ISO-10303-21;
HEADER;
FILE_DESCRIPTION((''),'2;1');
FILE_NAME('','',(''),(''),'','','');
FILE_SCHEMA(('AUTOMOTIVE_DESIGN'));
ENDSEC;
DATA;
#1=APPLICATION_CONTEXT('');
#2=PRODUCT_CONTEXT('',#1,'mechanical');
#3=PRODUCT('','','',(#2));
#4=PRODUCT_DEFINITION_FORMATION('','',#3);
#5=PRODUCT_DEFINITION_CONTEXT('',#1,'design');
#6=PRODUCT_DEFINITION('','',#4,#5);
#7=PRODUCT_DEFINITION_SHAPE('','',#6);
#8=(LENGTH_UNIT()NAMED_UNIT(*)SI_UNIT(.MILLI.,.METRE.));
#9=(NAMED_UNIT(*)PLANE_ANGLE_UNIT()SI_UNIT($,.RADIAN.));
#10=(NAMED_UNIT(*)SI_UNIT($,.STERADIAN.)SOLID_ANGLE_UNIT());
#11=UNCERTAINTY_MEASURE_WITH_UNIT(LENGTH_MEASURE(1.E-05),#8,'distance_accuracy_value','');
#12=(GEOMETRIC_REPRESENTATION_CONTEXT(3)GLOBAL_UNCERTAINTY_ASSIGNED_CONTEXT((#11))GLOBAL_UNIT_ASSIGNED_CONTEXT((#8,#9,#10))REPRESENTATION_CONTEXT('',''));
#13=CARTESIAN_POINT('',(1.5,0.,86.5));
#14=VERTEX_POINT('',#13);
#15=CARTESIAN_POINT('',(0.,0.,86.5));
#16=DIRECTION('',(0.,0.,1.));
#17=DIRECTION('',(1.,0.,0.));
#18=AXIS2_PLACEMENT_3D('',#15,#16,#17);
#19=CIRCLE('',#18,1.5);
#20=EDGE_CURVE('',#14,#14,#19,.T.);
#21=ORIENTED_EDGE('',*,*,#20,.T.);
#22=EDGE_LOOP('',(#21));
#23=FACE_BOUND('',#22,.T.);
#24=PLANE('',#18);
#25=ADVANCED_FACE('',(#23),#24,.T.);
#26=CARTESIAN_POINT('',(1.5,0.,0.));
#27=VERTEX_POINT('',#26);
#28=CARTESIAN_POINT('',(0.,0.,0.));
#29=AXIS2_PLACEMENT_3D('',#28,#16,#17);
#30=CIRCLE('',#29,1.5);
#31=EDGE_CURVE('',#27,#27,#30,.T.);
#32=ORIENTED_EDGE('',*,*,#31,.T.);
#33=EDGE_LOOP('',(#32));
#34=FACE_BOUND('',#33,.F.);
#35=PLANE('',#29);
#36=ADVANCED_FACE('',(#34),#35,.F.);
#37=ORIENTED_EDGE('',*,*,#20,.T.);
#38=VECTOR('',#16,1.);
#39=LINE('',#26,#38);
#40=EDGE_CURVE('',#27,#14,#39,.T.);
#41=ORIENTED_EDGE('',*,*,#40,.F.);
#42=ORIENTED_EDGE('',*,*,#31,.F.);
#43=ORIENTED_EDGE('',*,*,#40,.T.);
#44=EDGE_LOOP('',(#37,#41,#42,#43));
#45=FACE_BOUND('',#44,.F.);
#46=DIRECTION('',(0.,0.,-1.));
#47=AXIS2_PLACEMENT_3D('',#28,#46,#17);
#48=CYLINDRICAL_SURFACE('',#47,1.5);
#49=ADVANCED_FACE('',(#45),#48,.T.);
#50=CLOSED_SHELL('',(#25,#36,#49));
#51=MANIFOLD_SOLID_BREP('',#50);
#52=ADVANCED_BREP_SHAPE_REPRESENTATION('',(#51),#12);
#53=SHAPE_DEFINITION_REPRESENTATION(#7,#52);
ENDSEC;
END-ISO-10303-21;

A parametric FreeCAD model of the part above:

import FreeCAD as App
import Part
import Sketcher
from FreeCAD import Vector
Q = App.Units.Quantity

doc = App.newDocument("Part")
body = doc.addObject("PartDesign::Body", "Body")

# Sketch on XY plane
sketch1 = body.newObject("Sketcher::SketchObject", "Sketch")
sketch1.AttachmentSupport = (doc.getObject("XY_Plane"), [""])
sketch1.MapMode = "FlatFace"
sketch1.addGeometry(Part.Circle(Vector(0, 0, 0), Vector(0, 0, 1), 1.5), False)
sketch1.addConstraint(Sketcher.Constraint("Coincident", 0, 3, -1, 1))
sketch1.addConstraint(Sketcher.Constraint("Diameter", 0, Q("3 mm")))
pad1 = body.newObject("PartDesign::Pad", "Pad")
pad1.Profile = sketch1
pad1.Length = 86.5

doc.recompute()
